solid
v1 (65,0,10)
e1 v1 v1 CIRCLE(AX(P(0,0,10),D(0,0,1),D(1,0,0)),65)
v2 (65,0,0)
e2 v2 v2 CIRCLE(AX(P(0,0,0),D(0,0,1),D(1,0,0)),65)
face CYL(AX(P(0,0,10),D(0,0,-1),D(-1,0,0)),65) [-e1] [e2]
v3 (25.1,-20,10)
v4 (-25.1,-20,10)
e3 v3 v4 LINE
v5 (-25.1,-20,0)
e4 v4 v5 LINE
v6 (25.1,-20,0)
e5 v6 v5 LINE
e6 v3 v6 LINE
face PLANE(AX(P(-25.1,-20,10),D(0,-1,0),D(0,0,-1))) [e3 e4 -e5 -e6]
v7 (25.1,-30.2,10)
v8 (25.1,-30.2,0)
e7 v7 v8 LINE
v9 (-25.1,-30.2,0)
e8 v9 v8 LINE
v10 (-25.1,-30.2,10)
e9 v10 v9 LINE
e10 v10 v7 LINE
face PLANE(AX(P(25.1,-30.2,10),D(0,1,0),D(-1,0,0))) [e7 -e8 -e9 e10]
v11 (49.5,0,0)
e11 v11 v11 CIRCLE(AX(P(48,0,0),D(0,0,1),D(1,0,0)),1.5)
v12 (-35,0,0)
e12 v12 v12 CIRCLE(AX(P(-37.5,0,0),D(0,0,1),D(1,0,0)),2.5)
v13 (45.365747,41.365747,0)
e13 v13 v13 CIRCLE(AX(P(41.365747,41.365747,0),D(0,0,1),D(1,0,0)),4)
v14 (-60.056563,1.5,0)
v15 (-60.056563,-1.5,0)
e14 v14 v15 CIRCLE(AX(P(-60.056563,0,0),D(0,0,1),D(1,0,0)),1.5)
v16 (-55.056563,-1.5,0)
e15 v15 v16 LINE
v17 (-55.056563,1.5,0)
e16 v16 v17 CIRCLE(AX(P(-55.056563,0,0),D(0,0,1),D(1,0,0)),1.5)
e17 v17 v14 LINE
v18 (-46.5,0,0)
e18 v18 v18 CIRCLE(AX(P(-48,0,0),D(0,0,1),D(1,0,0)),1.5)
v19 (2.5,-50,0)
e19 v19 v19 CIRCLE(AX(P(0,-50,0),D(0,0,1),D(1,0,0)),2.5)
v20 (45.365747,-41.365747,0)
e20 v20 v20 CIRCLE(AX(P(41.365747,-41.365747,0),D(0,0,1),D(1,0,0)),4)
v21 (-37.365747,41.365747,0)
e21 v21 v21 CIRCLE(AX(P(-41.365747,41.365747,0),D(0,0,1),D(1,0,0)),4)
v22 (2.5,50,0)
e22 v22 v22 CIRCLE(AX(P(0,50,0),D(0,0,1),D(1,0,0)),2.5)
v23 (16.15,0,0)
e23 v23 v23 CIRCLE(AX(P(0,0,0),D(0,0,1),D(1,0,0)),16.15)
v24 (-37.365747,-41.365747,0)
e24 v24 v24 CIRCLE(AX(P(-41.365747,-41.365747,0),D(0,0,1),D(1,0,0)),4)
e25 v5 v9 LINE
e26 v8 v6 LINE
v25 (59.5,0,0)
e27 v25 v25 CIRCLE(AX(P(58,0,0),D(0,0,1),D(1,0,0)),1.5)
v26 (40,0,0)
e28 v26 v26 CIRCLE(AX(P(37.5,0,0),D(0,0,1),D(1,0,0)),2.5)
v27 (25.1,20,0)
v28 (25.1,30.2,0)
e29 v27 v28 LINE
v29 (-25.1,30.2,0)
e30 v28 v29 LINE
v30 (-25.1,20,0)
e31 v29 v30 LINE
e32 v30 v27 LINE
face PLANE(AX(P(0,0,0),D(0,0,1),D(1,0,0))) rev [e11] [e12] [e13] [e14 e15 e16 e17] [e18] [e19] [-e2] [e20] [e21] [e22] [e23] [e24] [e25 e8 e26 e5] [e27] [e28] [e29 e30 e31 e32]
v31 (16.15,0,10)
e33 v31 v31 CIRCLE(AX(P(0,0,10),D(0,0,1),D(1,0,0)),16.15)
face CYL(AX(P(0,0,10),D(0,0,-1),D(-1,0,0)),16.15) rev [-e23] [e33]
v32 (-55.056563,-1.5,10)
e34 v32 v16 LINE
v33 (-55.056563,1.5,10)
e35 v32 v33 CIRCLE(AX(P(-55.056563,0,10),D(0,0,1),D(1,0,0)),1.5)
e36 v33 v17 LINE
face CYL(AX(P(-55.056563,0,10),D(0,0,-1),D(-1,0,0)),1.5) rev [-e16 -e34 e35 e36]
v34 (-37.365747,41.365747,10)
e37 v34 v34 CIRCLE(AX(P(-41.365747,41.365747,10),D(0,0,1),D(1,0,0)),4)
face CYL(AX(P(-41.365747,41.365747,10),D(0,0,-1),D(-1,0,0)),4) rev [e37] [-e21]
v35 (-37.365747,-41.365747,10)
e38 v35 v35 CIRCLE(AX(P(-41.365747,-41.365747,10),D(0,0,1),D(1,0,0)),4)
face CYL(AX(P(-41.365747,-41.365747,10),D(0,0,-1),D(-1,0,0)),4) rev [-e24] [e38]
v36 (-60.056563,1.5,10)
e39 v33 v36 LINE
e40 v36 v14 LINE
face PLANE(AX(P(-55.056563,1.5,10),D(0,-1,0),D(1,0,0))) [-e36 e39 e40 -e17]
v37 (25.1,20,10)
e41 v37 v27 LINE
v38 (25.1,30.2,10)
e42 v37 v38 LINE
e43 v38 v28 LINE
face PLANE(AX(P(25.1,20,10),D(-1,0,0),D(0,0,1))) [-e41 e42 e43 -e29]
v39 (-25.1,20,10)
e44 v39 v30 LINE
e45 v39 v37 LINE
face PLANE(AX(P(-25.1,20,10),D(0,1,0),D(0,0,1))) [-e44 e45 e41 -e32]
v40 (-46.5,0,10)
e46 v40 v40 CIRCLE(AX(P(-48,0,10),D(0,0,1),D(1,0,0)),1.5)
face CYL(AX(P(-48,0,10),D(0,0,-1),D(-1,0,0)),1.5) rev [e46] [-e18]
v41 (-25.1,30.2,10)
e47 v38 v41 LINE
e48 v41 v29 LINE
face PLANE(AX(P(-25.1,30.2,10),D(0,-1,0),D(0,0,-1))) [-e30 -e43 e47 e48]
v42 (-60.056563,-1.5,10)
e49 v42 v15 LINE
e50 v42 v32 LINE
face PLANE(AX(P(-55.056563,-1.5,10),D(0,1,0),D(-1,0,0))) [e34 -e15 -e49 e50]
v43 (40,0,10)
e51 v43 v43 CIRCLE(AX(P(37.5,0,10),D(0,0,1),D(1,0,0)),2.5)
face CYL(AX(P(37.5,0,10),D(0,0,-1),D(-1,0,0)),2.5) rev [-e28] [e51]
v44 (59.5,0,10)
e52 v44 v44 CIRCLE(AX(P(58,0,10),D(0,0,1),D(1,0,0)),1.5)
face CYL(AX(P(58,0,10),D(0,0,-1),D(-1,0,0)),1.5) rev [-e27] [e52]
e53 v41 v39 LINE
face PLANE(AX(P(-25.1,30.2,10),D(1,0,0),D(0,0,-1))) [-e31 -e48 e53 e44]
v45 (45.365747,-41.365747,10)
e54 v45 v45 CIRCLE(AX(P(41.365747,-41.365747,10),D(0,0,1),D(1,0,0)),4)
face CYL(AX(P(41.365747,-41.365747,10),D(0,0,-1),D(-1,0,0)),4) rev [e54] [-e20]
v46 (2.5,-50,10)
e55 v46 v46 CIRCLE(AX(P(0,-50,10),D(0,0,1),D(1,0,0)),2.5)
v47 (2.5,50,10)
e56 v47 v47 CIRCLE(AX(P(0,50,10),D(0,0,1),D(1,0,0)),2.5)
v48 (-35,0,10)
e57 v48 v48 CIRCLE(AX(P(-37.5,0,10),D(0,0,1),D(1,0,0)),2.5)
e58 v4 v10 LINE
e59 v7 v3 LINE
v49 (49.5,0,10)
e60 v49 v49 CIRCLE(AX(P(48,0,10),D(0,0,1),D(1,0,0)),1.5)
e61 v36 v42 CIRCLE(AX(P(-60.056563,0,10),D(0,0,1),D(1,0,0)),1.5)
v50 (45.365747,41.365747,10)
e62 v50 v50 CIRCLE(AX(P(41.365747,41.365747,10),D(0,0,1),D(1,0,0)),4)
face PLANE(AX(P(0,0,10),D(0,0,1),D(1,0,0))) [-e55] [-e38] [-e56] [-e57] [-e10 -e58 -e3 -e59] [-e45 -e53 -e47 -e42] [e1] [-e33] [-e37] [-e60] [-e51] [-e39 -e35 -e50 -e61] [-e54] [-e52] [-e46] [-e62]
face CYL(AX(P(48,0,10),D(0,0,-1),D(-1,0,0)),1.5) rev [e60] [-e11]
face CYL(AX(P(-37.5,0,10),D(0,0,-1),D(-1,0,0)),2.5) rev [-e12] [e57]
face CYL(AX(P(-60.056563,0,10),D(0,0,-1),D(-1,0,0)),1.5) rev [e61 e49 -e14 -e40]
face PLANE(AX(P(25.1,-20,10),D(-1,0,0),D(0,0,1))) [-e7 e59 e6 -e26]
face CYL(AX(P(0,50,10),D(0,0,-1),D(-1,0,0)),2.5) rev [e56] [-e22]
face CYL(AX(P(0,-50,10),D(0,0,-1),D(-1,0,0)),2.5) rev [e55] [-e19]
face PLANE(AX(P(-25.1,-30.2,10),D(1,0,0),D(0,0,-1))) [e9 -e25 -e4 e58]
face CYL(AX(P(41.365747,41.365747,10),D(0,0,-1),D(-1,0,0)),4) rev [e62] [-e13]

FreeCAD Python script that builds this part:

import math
import FreeCAD as App
import Part
import Sketcher

V = App.Vector


def add_polygon(sketch, points):
    """Adds a closed chain of lines whose ends are joined by coincident constraints."""
    first, n = sketch.GeometryCount, len(points)
    for a, b in zip(points, points[1:] + points[:1]):
        sketch.addGeometry(Part.LineSegment(App.Vector(*a, 0), App.Vector(*b, 0)), False)
    for i in range(n):
        sketch.addConstraint(Sketcher.Constraint("Coincident", first + i, 2, first + (i + 1) % n, 1))

doc = App.newDocument("Part")
body = doc.addObject("PartDesign::Body", "Body")

sketch1 = body.newObject("Sketcher::SketchObject", "Sketch")
sketch1.AttachmentSupport = (doc.getObject("XY_Plane"), [""])
sketch1.MapMode = "FlatFace"
sketch1.addGeometry(Part.Circle(V(0, 0, 0), V(0, 0, 1), 65), False)
sketch1.addGeometry(Part.Circle(V(-41.4, -41.4, 0), V(0, 0, 1), 4), False)
sketch1.addGeometry(Part.Circle(V(0, -50, 0), V(0, 0, 1), 2.5), False)
sketch1.addGeometry(Part.Circle(V(41.4, -41.4, 0), V(0, 0, 1), 4), False)
add_polygon(sketch1, [(25.1, -30.2), (-25.1, -30.2), (-25.1, -20), (25.1, -20)])
sketch1.addGeometry(Part.ArcOfCircle(Part.Circle(V(-55.1, 0, 0), V(0, 0, 1), 1.5), math.radians(-90), math.radians(90)), False)
sketch1.addGeometry(Part.LineSegment(V(-55.1, -1.5, 0), V(-60.1, -1.5, 0)), False)
sketch1.addGeometry(Part.ArcOfCircle(Part.Circle(V(-60.1, 0, 0), V(0, 0, 1), 1.5), math.radians(90), math.radians(270)), False)
sketch1.addGeometry(Part.LineSegment(V(-60.1, 1.5, 0), V(-55.1, 1.5, 0)), False)
sketch1.addGeometry(Part.Circle(V(-48, 0, 0), V(0, 0, 1), 1.5), False)
sketch1.addGeometry(Part.Circle(V(-37.5, 0, 0), V(0, 0, 1), 2.5), False)
sketch1.addGeometry(Part.Circle(V(-41.4, 41.4, 0), V(0, 0, 1), 4), False)
sketch1.addGeometry(Part.Circle(V(0, 0, 0), V(0, 0, 1), 16.1), False)
add_polygon(sketch1, [(25.1, 20), (-25.1, 20), (-25.1, 30.2), (25.1, 30.2)])
sketch1.addGeometry(Part.Circle(V(37.5, 0, 0), V(0, 0, 1), 2.5), False)
sketch1.addGeometry(Part.Circle(V(48, 0, 0), V(0, 0, 1), 1.5), False)
sketch1.addGeometry(Part.Circle(V(58, 0, 0), V(0, 0, 1), 1.5), False)
sketch1.addGeometry(Part.Circle(V(0, 50, 0), V(0, 0, 1), 2.5), False)
sketch1.addGeometry(Part.Circle(V(41.4, 41.4, 0), V(0, 0, 1), 4), False)
sketch1.addConstraint(Sketcher.Constraint("Tangent", 8, 1, 9, 1))
sketch1.addConstraint(Sketcher.Constraint("Tangent", 9, 2, 10, 2))
sketch1.addConstraint(Sketcher.Constraint("Tangent", 10, 1, 11, 1))
sketch1.addConstraint(Sketcher.Constraint("Tangent", 11, 2, 8, 2))
sketch1.addConstraint(Sketcher.Constraint("Horizontal", 4))
sketch1.addConstraint(Sketcher.Constraint("Vertical", 5))
sketch1.addConstraint(Sketcher.Constraint("Horizontal", 6))
sketch1.addConstraint(Sketcher.Constraint("Vertical", 7))
sketch1.addConstraint(Sketcher.Constraint("Horizontal", 9))
sketch1.addConstraint(Sketcher.Constraint("Horizontal", 11))
sketch1.addConstraint(Sketcher.Constraint("Horizontal", 16))
sketch1.addConstraint(Sketcher.Constraint("Vertical", 17))
sketch1.addConstraint(Sketcher.Constraint("Horizontal", 18))
sketch1.addConstraint(Sketcher.Constraint("Vertical", 19))
sketch1.addConstraint(Sketcher.Constraint("Coincident", 0, 3, -1, 1))
sketch1.addConstraint(Sketcher.Constraint("Coincident", 15, 3, -1, 1))
sketch1.addConstraint(Sketcher.Constraint("Equal", 1, 3))
sketch1.addConstraint(Sketcher.Constraint("Equal", 10, 12))
sketch1.addConstraint(Sketcher.Constraint("Equal", 2, 13))
sketch1.addConstraint(Sketcher.Constraint("Equal", 3, 14))
sketch1.addConstraint(Sketcher.Constraint("Equal", 13, 20))
sketch1.addConstraint(Sketcher.Constraint("Equal", 12, 21))
sketch1.addConstraint(Sketcher.Constraint("Equal", 21, 22))
sketch1.addConstraint(Sketcher.Constraint("Equal", 20, 23))
sketch1.addConstraint(Sketcher.Constraint("Equal", 14, 24))
sketch1.addConstraint(Sketcher.Constraint("Symmetric", 3, 3, 14, 3, -1, 1))
sketch1.addConstraint(Sketcher.Constraint("Symmetric", 13, 3, 20, 3, -1, 1))
sketch1.addConstraint(Sketcher.Constraint("Symmetric", 12, 3, 21, 3, -1, 1))
sketch1.addConstraint(Sketcher.Constraint("Symmetric", 2, 3, 23, 3, -1, 1))
sketch1.addConstraint(Sketcher.Constraint("Symmetric", 1, 3, 24, 3, -1, 1))
sketch1.addConstraint(Sketcher.Constraint("Symmetric", 6, 2, 16, 2, -1, 1))
sketch1.addConstraint(Sketcher.Constraint("Symmetric", 4, 2, 18, 2, -1, 1))
sketch1.addConstraint(Sketcher.Constraint("Symmetric", 1, 3, 3, 3, -2))
sketch1.addConstraint(Sketcher.Constraint("PointOnObject", 2, 3, -2))
sketch1.addConstraint(Sketcher.Constraint("PointOnObject", 8, 3, -1))
sketch1.addConstraint(Sketcher.Constraint("PointOnObject", 12, 3, -1))
sketch1.addConstraint(Sketcher.Constraint("PointOnObject", 13, 3, -1))
sketch1.addConstraint(Sketcher.Constraint("PointOnObject", 22, 3, -1))
sketch1.addConstraint(Sketcher.Constraint("Vertical", 5, 2, 16, 2))
sketch1.addConstraint(Sketcher.Constraint("Diameter", 0, 130.0))
sketch1.addConstraint(Sketcher.Constraint("Diameter", 1, 8.0))
sketch1.addConstraint(Sketcher.Constraint("Diameter", 2, 5.0))
sketch1.addConstraint(Sketcher.Constraint("Diameter", 12, 3.0))
sketch1.addConstraint(Sketcher.Constraint("Diameter", 15, 32.3))
sketch1.addConstraint(Sketcher.Constraint("DistanceX", 9, 2, 9, 1, 5.0))
sketch1.addConstraint(Sketcher.Constraint("DistanceX", 4, 2, 4, 1, 50.2))
sketch1.addConstraint(Sketcher.Constraint("DistanceY", 5, 1, 5, 2, 10.2))
sketch1.addConstraint(Sketcher.Constraint("DistanceY", 2, 3, -1, 1, 50.0))
sketch1.addConstraint(Sketcher.Constraint("DistanceX", 12, 3, -1, 1, 48.0))
sketch1.addConstraint(Sketcher.Constraint("DistanceX", -1, 1, 22, 3, 58.0))
sketch1.addConstraint(Sketcher.Constraint("DistanceY", 5, 2, -1, 1, 20.0))
sketch1.addConstraint(Sketcher.Constraint("DistanceX", 13, 3, 20, 3, 75.0))
sketch1.addConstraint(Sketcher.Constraint("DistanceX", 8, 3, 3, 3, 96.42231))
sketch1.addConstraint(Sketcher.Constraint("DistanceX", 1, 3, -1, 1, 41.365747))
sketch1.addConstraint(Sketcher.Constraint("DistanceY", 1, 3, -1, 1, 41.365747))
pad1 = body.newObject("PartDesign::Pad", "Pad")
pad1.Profile = sketch1
pad1.Length = 10

doc.recompute()
